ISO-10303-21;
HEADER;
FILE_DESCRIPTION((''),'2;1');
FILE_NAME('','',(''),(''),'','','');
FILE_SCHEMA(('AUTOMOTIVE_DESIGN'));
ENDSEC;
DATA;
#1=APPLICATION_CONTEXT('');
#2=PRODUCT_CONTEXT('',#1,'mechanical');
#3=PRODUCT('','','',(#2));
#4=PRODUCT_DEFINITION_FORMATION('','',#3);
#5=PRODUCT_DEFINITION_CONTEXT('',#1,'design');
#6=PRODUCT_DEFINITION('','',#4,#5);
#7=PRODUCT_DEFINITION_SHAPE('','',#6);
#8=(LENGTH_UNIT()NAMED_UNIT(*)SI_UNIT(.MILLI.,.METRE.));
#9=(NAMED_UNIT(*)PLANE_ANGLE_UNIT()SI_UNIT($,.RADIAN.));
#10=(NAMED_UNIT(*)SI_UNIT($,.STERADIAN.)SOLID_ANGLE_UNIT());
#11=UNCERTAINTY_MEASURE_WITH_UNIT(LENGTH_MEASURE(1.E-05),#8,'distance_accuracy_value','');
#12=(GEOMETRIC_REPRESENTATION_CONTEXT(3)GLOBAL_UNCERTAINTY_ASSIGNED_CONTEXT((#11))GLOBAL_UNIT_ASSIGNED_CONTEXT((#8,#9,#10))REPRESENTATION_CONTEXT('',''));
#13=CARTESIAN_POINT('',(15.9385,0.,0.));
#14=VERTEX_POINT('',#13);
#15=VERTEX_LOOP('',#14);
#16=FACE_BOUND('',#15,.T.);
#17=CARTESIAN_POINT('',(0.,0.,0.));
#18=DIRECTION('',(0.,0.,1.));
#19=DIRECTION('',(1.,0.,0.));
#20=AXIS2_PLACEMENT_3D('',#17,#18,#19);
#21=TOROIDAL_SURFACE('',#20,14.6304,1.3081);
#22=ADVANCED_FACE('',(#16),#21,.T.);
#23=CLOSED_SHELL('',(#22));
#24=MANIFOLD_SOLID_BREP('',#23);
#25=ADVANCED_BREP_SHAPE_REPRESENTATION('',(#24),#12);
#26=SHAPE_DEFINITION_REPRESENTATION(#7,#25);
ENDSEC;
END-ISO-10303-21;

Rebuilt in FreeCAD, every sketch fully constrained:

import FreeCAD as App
import Part
import Sketcher
from FreeCAD import Vector
Q = App.Units.Quantity

doc = App.newDocument("Part")
body = doc.addObject("PartDesign::Body", "Body")

sketch1 = body.newObject("Sketcher::SketchObject", "Sketch")
sketch1.AttachmentSupport = (doc.getObject("YZ_Plane"), [""])
sketch1.MapMode = "FlatFace"
sketch1.addGeometry(Part.Circle(Vector(-14.6, 0, 0), Vector(0, 0, 1), 1.3), False)
sketch1.addConstraint([
    Sketcher.Constraint("PointOnObject", 0, 3, -1),
    Sketcher.Constraint("Diameter", 0, Q("0.103 in")),
    Sketcher.Constraint("DistanceX", 0, 3, -1, 1, Q("0.576 in")),
])
revolution = body.newObject("PartDesign::Revolution", "Revolution")
revolution.Profile = sketch1
revolution.ReferenceAxis = (sketch1, ["V_Axis"])
revolution.Angle = 360

doc.recompute()
